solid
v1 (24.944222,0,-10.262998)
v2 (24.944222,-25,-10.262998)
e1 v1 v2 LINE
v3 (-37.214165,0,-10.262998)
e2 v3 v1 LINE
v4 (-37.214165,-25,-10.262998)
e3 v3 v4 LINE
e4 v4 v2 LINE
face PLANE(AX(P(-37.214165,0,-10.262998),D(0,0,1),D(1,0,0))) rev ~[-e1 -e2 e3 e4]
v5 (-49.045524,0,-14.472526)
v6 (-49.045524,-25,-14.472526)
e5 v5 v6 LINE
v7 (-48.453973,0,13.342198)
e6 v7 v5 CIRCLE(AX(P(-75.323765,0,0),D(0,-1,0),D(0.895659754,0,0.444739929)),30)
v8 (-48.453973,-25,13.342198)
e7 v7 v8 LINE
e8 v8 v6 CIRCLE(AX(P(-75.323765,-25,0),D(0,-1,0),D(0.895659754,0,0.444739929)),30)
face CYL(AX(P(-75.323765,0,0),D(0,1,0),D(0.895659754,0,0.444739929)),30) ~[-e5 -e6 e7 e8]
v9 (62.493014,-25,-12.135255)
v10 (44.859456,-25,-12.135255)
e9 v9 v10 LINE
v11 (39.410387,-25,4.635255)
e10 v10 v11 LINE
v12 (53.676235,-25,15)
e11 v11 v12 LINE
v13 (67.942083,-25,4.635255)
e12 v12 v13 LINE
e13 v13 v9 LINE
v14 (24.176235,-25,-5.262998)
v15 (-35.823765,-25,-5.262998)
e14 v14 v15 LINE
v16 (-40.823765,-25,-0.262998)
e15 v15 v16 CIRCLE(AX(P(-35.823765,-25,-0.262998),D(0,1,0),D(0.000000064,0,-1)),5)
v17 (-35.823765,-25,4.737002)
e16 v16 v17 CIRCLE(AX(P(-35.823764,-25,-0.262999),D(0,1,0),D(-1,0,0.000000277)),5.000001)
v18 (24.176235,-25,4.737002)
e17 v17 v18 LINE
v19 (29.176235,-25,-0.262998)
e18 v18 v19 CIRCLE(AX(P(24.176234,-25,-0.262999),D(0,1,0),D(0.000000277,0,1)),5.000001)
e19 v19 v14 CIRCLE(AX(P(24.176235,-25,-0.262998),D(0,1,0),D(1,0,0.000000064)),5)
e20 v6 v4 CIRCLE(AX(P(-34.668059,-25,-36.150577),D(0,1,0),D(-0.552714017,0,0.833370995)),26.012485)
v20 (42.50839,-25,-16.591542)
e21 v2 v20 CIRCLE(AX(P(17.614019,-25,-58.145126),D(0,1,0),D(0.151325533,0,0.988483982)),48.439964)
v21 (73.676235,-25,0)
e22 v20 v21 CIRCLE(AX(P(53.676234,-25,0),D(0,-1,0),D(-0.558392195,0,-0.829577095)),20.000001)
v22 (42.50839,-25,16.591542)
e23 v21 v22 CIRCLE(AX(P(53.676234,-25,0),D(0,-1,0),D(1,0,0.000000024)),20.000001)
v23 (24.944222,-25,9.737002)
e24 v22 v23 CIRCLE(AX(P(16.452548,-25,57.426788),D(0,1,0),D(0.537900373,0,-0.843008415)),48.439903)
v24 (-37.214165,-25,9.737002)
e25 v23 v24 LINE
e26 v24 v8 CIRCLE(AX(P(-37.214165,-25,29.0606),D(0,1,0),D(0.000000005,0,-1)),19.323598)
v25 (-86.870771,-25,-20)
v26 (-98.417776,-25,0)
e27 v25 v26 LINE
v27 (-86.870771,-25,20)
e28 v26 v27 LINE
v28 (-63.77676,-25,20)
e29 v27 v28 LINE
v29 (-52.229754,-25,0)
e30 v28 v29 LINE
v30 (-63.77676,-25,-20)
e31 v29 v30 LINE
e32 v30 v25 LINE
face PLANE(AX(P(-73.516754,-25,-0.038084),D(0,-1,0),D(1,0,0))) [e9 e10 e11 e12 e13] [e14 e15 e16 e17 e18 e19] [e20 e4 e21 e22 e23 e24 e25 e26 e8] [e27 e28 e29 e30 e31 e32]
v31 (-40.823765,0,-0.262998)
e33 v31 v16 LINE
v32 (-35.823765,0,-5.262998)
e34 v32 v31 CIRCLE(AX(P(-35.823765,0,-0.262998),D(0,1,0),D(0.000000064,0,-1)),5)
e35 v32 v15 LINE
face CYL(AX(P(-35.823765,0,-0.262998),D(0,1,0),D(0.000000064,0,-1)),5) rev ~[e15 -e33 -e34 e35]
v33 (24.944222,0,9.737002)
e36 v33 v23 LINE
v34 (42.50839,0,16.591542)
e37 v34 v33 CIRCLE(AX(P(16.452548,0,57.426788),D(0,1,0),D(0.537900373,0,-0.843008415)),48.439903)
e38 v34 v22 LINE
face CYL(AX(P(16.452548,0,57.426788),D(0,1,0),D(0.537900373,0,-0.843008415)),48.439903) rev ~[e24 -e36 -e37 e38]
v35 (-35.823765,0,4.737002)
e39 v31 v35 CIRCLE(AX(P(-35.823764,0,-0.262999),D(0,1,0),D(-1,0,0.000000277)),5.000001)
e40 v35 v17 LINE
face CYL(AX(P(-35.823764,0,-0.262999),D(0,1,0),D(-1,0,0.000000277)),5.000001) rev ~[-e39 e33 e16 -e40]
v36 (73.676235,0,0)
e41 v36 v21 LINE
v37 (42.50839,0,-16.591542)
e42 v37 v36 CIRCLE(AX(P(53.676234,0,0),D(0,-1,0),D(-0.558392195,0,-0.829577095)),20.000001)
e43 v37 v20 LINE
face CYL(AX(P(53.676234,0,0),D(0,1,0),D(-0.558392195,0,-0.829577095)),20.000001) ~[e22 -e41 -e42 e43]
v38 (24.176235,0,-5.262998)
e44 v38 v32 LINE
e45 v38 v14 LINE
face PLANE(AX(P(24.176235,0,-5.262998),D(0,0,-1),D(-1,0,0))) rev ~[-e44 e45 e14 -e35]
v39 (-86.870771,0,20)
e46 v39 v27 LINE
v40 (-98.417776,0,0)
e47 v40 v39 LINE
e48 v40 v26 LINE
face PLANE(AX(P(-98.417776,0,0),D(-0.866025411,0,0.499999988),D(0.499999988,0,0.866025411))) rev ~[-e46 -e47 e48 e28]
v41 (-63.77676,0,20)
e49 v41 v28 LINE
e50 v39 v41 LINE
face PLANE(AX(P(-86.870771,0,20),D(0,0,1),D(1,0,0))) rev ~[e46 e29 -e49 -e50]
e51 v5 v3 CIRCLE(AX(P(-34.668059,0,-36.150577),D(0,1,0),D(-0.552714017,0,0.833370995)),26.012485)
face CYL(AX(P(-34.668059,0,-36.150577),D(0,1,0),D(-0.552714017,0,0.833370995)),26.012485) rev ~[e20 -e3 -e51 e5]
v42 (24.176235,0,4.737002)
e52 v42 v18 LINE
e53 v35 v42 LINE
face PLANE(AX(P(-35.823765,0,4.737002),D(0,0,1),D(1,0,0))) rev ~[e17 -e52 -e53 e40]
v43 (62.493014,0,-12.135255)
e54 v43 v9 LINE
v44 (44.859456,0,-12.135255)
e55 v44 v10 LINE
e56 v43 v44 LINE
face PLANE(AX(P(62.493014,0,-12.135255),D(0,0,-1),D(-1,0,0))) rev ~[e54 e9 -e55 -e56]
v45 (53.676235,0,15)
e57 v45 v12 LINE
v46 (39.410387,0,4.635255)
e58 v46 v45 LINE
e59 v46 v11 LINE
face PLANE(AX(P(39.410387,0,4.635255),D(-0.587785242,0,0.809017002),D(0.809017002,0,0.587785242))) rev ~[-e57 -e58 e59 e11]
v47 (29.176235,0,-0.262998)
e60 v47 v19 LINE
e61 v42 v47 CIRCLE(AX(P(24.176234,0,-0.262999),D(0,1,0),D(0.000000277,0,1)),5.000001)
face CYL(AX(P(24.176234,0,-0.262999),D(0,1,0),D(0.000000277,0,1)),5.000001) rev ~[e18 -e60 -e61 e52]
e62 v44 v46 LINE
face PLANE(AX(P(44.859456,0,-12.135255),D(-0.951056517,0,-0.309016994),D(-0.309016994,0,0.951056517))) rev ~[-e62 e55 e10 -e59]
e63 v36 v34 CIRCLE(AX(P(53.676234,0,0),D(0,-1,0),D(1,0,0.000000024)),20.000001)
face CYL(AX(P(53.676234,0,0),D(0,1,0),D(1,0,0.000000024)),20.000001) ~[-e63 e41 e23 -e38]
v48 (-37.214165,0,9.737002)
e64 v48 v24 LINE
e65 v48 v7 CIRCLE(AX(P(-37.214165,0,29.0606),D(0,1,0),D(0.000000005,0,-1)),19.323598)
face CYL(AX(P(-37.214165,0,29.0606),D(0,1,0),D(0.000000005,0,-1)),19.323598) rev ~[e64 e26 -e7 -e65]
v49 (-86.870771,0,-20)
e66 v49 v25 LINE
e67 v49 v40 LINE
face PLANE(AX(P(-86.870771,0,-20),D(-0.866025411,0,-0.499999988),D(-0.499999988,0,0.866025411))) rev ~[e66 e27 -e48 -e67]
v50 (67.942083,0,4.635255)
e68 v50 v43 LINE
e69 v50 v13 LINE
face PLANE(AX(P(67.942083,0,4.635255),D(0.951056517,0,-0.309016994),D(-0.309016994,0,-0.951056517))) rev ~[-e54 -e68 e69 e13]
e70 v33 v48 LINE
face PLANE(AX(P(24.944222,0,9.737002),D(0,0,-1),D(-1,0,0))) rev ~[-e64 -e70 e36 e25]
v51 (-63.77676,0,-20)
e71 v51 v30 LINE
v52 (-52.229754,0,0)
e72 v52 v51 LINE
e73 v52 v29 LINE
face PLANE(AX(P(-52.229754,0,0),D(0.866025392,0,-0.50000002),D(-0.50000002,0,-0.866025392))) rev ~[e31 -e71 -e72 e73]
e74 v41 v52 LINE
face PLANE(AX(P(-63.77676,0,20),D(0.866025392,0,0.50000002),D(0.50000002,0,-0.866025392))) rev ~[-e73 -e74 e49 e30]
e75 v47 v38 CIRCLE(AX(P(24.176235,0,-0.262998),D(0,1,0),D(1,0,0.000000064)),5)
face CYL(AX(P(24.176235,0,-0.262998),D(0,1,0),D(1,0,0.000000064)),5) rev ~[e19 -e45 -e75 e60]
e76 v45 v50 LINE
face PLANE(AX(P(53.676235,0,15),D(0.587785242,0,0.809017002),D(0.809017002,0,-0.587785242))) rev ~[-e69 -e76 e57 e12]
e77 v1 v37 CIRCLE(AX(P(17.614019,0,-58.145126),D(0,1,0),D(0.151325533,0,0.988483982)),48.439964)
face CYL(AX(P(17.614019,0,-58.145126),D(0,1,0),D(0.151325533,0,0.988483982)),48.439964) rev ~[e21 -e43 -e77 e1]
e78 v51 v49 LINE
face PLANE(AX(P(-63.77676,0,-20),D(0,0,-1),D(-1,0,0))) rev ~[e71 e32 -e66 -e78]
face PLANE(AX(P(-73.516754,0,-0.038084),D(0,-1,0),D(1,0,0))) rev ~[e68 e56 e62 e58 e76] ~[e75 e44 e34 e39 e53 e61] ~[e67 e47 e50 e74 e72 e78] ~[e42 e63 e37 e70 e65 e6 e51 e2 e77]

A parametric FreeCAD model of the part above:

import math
import FreeCAD as App
import Part
import Sketcher
from FreeCAD import Vector


def add_polygon(sketch, points):
    """Adds a closed chain of lines whose ends are joined by coincident constraints."""
    first, n = sketch.GeometryCount, len(points)
    for a, b in zip(points, points[1:] + points[:1]):
        sketch.addGeometry(Part.LineSegment(App.Vector(*a, 0), App.Vector(*b, 0)), False)
    for i in range(n):
        sketch.addConstraint(Sketcher.Constraint("Coincident", first + i, 2, first + (i + 1) % n, 1))

doc = App.newDocument("Part")
params = doc.addObject("Spreadsheet::Sheet", "Params")
for row, (alias, value) in enumerate([
    ("sketch1_radius", "30 mm"),
    ("sketch1_radius2", "20.000001 mm"),
    ("sketch1_radius3", "5 mm"),
    ("sketch1_width", "60 mm"),
    ("sketch1_width2", "60 mm"),
    ("pad1_length", "25 mm"),
], start=1):
    params.set(f"A{row}", alias)
    params.set(f"B{row}", "=" + value)
    params.setAlias(f"B{row}", alias)

body = doc.addObject("PartDesign::Body", "Body")

# Sketch on XZ plane
sketch1 = body.newObject("Sketcher::SketchObject", "Sketch")
sketch1.AttachmentSupport = (doc.getObject("XZ_Plane"), [""])
sketch1.MapMode = "FlatFace"
sketch1.addGeometry(Part.ArcOfCircle(Part.Circle(Vector(-75.323765, 0, 0), Vector(0, 0, 1), 30), math.radians(26.406701), math.radians(331.156585)), False)  # 0
sketch1.addGeometry(Part.ArcOfCircle(Part.Circle(Vector(-34.668059, -36.150577, 0), Vector(0, 0, 1), 26.012485), math.radians(95.617114), math.radians(123.553406)), False)  # 1
sketch1.addGeometry(Part.LineSegment(Vector(-37.214165, -10.262998, 0), Vector(24.944222, -10.262998, 0)), False)  # 2
sketch1.addGeometry(Part.ArcOfCircle(Part.Circle(Vector(17.614019, -58.145126, 0), Vector(0, 0, 1), 48.439964), math.radians(59.074562), math.radians(81.296249)), False)  # 3
sketch1.addGeometry(Part.ArcOfCircle(Part.Circle(Vector(53.676234, 0, 0), Vector(0, 0, 1), 20.000001), math.radians(-123.94468), math.radians(-0.000001)), False)  # 4
sketch1.addGeometry(Part.ArcOfCircle(Part.Circle(Vector(53.676234, 0, 0), Vector(0, 0, 1), 20.000001), math.radians(0.000001), math.radians(123.94468)), False)  # 5
sketch1.addGeometry(Part.ArcOfCircle(Part.Circle(Vector(16.452548, 57.426788, 0), Vector(0, 0, 1), 48.439903), math.radians(-79.903692), math.radians(-57.459178)), False)  # 6
sketch1.addGeometry(Part.LineSegment(Vector(24.944222, 9.737002, 0), Vector(-37.214165, 9.737002, 0)), False)  # 7
sketch1.addGeometry(Part.ArcOfCircle(Part.Circle(Vector(-37.214165, 29.0606, 0), Vector(0, 0, 1), 19.323598), math.radians(-125.567542), math.radians(-90)), False)  # 8
sketch1.addGeometry(Part.ArcOfCircle(Part.Circle(Vector(-35.823765, -0.262998, 0), Vector(0, 0, 1), 5), math.radians(179.999996), math.radians(270.000004)), False)  # 9
sketch1.addGeometry(Part.ArcOfCircle(Part.Circle(Vector(-35.823764, -0.262999, 0), Vector(0, 0, 1), 5.000001), math.radians(90.000016), math.radians(179.999984)), False)  # 10
sketch1.addGeometry(Part.LineSegment(Vector(-35.823765, 4.737002, 0), Vector(24.176235, 4.737002, 0)), False)  # 11
sketch1.addGeometry(Part.ArcOfCircle(Part.Circle(Vector(24.176234, -0.262999, 0), Vector(0, 0, 1), 5.000001), math.radians(0.000016), math.radians(89.999984)), False)  # 12
sketch1.addGeometry(Part.ArcOfCircle(Part.Circle(Vector(24.176235, -0.262998, 0), Vector(0, 0, 1), 5), math.radians(-90.000004), math.radians(0.000004)), False)  # 13
sketch1.addGeometry(Part.LineSegment(Vector(24.176235, -5.262998, 0), Vector(-35.823765, -5.262998, 0)), False)  # 14
add_polygon(sketch1, [(-86.870771, -20), (-98.417776, 0), (-86.870771, 20), (-63.77676, 20), (-52.229754, 0), (-63.77676, -20)])  # lines 15-20
add_polygon(sketch1, [(39.410387, 4.635255), (53.676235, 15), (67.942083, 4.635255), (62.493014, -12.135255), (44.859456, -12.135255)])  # lines 21-25
sketch1.addConstraint([
    Sketcher.Constraint("Coincident", 0, 2, 1, 2),
    Sketcher.Constraint("Coincident", 1, 1, 2, 1),
    Sketcher.Constraint("Coincident", 2, 2, 3, 2),
    Sketcher.Constraint("Coincident", 3, 1, 4, 1),
    Sketcher.Constraint("Coincident", 4, 2, 5, 1),
    Sketcher.Constraint("Coincident", 5, 2, 6, 2),
    Sketcher.Constraint("Coincident", 6, 1, 7, 1),
    Sketcher.Constraint("Coincident", 7, 2, 8, 2),
    Sketcher.Constraint("Coincident", 8, 1, 0, 1),
    Sketcher.Constraint("Coincident", 9, 1, 10, 2),
    Sketcher.Constraint("Coincident", 10, 1, 11, 1),
    Sketcher.Constraint("Coincident", 11, 2, 12, 2),
    Sketcher.Constraint("Coincident", 12, 1, 13, 2),
    Sketcher.Constraint("Coincident", 13, 1, 14, 1),
    Sketcher.Constraint("Coincident", 14, 2, 9, 2),
    Sketcher.Constraint("Horizontal", 2),
    Sketcher.Constraint("Horizontal", 7),
    Sketcher.Constraint("Horizontal", 11),
    Sketcher.Constraint("Horizontal", 14),
    Sketcher.Constraint("Horizontal", 17),
    Sketcher.Constraint("Horizontal", 20),
    Sketcher.Constraint("Horizontal", 24),
    Sketcher.Constraint("Coincident", 5, 3, 4, 3),
    Sketcher.Constraint("Coincident", 10, 3, 9, 3),
    Sketcher.Constraint("Coincident", 13, 3, 12, 3),
    Sketcher.Constraint("PointOnObject", 0, 3, -1),
    Sketcher.Constraint("PointOnObject", 4, 3, -1),
    Sketcher.Constraint("PointOnObject", 4, 2, -1),
    Sketcher.Constraint("PointOnObject", 15, 2, -1),
    Sketcher.Constraint("PointOnObject", 18, 2, -1),
    Sketcher.Constraint("Radius", 0, 30.0),
    Sketcher.Constraint("Radius", 4, 20.000001),
    Sketcher.Constraint("Radius", 9, 5.0),
    Sketcher.Constraint("DistanceX", 11, 1, 11, 2, 60.0),
    Sketcher.Constraint("DistanceX", 14, 2, 14, 1, 60.0),
    Sketcher.Constraint("DistanceY", -1, 1, 16, 2, 20.0),
    Sketcher.Constraint("DistanceY", 19, 2, -1, 1, 20.0),
    Sketcher.Constraint("DistanceY", -1, 1, 21, 2, 15.0),
    Sketcher.Constraint("DistanceX", 0, 3, 4, 3, 129.0),
    Sketcher.Constraint("DistanceY", 1, 1, 10, 3, 9.999999),
    Sketcher.Constraint("DistanceY", 13, 3, 6, 1, 10.0),
    Sketcher.Constraint("DistanceY", 1, 1, 9, 1, 10.0),
    Sketcher.Constraint("DistanceX", 9, 1, 10, 1, 5.0),
    Sketcher.Constraint("DistanceX", 11, 2, 12, 1, 5.0),
    Sketcher.Constraint("DistanceY", 12, 1, 11, 2, 5.0),
    Sketcher.Constraint("DistanceX", 13, 1, 12, 1, 5.0),
    Sketcher.Constraint("DistanceX", 21, 2, 4, 2, 20.0),
    Sketcher.Constraint("Radius", 8, 19.323598),
    Sketcher.Constraint("DistanceX", 0, 3, 9, 3, 39.5),
    Sketcher.Constraint("DistanceY", 9, 3, -1, 1, 0.262998),
    Sketcher.Constraint("Radius", 1, 26.012485),
    Sketcher.Constraint("Radius", 3, 48.439964),
    Sketcher.Constraint("Radius", 6, 48.439903),
    Sketcher.Constraint("DistanceX", 17, 1, 17, 2, 23.094011),
    Sketcher.Constraint("DistanceX", 20, 2, 20, 1, 23.094011),
    Sketcher.Constraint("DistanceX", 24, 2, 24, 1, 17.633558),
    Sketcher.Constraint("DistanceX", 0, 3, 8, 3, 38.1096),
    Sketcher.Constraint("DistanceX", 1, 1, 10, 3, 1.390401),
    Sketcher.Constraint("DistanceX", 7, 2, 9, 3, 1.3904),
    Sketcher.Constraint("Distance", 15, 23.094011),
    Sketcher.Constraint("Distance", 16, 23.094011),
    Sketcher.Constraint("Distance", 18, 23.094011),
    Sketcher.Constraint("DistanceX", 2, 1, 2, 2, 62.158387),
    Sketcher.Constraint("DistanceX", 7, 2, 7, 1, 62.158387),
    Sketcher.Constraint("DistanceX", 1, 3, -1, 1, 34.668059),
    Sketcher.Constraint("DistanceX", -1, 1, 3, 3, 17.614019),
    Sketcher.Constraint("DistanceX", -1, 1, 6, 3, 16.452548),
    Sketcher.Constraint("DistanceX", -1, 1, 2, 2, 24.944222),
    Sketcher.Constraint("DistanceX", 16, 2, -1, 1, 86.870771),
    Sketcher.Constraint("DistanceX", 22, 2, 4, 2, 5.734152),
    Sketcher.Constraint("DistanceX", 5, 3, 23, 2, 8.81678),
    Sketcher.Constraint("DistanceY", 23, 2, 22, 2, 16.77051),
    Sketcher.Constraint("Distance", 21, 17.633558),
    Sketcher.Constraint("Distance", 22, 17.633558),
    Sketcher.Constraint("Distance", 25, 17.633558),
])
sketch1.setExpression("Constraints[41]", "Params.sketch1_radius")
sketch1.setExpression("Constraints[42]", "Params.sketch1_radius2")
sketch1.setExpression("Constraints[43]", "Params.sketch1_radius3")
sketch1.setExpression("Constraints[44]", "Params.sketch1_width")
sketch1.setExpression("Constraints[45]", "Params.sketch1_width2")
pad1 = body.newObject("PartDesign::Pad", "Pad")
pad1.Profile = sketch1
pad1.setExpression("Length", "Params.pad1_length")

doc.recompute()
